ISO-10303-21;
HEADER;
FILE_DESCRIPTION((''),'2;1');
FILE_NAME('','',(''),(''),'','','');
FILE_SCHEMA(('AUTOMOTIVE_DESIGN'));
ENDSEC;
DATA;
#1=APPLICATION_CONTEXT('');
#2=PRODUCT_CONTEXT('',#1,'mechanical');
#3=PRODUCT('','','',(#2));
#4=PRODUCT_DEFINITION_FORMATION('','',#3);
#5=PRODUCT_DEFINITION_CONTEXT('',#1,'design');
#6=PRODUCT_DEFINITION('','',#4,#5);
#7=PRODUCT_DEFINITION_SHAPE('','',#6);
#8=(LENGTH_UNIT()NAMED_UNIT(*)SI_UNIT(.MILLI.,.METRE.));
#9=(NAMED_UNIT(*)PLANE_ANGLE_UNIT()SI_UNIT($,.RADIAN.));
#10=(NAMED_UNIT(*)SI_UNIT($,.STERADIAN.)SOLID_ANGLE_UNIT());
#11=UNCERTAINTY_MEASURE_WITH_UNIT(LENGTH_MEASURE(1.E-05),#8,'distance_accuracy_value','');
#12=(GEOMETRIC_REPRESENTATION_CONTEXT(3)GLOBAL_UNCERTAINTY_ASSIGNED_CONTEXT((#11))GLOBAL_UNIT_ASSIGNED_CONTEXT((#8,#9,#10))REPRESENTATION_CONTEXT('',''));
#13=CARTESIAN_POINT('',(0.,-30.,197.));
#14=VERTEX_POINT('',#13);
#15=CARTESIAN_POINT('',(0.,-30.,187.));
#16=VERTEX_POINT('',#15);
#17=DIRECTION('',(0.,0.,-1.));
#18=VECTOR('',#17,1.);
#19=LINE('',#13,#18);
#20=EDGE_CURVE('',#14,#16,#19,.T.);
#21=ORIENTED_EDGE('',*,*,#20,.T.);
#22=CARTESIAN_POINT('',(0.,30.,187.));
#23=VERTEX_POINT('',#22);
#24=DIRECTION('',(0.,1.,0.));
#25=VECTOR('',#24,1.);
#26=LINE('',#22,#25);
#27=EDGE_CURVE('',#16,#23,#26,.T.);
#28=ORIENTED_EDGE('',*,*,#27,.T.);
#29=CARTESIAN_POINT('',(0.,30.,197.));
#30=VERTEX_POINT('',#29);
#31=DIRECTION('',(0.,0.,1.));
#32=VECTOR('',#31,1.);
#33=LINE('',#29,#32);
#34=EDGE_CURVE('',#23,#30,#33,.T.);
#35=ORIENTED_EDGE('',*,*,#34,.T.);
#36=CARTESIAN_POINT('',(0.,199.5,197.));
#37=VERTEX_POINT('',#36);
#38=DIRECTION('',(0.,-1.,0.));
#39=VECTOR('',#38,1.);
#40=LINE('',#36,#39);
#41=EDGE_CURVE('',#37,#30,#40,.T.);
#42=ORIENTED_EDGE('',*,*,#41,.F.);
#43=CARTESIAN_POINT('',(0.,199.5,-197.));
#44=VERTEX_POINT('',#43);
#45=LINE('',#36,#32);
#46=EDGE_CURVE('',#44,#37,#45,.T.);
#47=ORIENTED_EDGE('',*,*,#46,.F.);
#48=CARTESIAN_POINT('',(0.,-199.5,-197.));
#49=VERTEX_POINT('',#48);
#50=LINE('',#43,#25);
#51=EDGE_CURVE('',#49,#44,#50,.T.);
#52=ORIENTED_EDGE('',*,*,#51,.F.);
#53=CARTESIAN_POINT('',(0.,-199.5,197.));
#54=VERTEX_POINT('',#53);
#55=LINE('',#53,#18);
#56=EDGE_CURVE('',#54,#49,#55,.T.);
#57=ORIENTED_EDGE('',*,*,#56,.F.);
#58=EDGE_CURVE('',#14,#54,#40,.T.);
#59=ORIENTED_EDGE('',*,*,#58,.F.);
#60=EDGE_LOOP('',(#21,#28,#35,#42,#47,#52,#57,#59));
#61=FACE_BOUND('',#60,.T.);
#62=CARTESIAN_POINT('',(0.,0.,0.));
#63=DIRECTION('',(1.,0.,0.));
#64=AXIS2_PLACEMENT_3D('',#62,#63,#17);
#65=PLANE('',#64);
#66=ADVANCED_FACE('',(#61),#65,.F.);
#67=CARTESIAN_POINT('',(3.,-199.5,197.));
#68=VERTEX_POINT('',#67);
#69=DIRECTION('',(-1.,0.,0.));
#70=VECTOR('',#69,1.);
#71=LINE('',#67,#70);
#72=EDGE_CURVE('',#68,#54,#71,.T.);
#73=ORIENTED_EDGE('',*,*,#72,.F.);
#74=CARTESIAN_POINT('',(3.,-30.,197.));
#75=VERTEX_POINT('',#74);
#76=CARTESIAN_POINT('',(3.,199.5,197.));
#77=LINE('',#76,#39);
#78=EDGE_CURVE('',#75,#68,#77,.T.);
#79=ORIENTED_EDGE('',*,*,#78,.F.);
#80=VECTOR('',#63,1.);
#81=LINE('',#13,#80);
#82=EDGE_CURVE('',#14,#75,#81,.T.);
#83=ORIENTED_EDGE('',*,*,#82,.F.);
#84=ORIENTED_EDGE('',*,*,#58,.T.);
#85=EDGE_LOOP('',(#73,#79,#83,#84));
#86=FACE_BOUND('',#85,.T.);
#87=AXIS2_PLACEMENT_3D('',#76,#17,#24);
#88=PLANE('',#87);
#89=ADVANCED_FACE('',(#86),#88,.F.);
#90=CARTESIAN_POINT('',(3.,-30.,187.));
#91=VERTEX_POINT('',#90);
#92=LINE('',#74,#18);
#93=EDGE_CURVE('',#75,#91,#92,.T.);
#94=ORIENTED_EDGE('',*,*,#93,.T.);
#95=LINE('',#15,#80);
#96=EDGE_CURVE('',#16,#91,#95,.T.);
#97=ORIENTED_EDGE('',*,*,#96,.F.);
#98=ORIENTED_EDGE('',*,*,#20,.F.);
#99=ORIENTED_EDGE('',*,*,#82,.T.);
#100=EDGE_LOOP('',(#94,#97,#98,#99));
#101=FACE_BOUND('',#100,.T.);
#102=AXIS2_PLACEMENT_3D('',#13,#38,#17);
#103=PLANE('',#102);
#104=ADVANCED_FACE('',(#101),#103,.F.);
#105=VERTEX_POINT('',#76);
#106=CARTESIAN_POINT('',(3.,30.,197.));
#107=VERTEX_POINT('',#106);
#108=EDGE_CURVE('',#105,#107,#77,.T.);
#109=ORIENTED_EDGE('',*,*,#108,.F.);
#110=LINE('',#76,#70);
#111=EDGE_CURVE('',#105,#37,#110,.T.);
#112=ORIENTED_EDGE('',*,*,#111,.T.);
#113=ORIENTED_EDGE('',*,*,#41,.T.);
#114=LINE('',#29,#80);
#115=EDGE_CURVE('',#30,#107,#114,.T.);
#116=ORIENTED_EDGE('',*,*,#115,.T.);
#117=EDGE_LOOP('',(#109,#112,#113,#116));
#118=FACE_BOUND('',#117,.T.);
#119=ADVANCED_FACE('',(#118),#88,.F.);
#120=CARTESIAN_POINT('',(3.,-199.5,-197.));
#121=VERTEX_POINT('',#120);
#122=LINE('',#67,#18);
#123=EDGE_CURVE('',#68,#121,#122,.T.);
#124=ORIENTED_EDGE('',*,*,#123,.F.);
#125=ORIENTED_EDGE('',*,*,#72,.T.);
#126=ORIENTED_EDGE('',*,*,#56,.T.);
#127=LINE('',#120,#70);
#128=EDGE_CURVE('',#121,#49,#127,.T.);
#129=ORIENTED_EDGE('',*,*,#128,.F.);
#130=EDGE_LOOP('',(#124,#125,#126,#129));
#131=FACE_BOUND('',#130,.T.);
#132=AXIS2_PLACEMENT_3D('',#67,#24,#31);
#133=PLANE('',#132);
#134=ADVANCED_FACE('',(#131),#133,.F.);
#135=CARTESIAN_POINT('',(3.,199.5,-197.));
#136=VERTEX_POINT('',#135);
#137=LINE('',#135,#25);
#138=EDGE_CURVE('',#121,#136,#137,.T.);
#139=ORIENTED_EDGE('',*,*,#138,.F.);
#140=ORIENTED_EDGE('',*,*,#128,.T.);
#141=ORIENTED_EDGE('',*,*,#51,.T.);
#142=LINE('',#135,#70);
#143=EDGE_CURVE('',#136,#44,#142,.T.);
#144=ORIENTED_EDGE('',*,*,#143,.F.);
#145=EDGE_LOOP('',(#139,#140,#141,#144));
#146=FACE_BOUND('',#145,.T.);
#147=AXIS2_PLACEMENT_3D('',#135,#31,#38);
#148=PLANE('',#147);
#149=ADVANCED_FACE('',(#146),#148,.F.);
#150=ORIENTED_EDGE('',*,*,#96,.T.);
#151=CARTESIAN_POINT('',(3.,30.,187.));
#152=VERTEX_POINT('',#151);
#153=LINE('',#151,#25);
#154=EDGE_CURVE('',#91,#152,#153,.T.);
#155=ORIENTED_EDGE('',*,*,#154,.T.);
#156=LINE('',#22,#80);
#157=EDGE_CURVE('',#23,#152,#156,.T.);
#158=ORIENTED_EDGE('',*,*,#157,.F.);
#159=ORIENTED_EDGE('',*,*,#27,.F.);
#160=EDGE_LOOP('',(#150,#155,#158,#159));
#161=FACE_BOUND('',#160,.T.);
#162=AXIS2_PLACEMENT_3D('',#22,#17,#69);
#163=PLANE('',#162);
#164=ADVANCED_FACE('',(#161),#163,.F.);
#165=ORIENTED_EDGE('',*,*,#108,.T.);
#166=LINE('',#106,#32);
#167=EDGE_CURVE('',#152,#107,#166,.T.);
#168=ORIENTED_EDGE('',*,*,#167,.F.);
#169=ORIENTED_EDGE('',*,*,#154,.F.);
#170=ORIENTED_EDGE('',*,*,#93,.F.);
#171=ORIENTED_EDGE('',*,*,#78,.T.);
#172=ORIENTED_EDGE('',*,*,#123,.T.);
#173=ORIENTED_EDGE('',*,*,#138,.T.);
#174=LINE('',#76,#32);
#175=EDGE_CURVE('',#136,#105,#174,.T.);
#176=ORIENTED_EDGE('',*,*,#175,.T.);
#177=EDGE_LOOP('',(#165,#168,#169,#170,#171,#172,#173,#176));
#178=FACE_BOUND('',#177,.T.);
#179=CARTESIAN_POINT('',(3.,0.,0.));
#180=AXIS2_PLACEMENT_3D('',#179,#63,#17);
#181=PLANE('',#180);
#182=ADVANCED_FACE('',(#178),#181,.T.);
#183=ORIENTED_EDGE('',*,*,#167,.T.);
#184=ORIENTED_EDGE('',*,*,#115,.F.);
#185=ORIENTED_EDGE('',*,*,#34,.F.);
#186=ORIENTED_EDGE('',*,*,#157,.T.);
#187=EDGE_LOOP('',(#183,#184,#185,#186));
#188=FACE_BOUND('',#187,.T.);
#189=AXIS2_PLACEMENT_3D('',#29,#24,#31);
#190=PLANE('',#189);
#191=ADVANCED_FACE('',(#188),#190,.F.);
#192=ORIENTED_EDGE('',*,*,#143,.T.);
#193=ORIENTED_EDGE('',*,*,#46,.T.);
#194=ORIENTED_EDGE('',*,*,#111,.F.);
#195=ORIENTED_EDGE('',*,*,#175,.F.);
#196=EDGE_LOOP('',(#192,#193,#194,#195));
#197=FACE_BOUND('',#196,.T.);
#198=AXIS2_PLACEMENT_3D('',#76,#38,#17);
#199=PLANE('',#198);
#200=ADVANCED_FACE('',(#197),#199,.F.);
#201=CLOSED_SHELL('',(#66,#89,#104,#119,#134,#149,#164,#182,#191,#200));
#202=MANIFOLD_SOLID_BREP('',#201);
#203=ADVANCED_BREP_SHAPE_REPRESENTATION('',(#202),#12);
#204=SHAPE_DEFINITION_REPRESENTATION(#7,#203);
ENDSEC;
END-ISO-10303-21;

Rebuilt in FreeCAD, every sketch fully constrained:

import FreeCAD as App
import Part
import Sketcher
Q = App.Units.Quantity


def add_polygon(sketch, points):
    """Adds a closed chain of lines whose ends are joined by coincident constraints."""
    first, n = sketch.GeometryCount, len(points)
    for a, b in zip(points, points[1:] + points[:1]):
        sketch.addGeometry(Part.LineSegment(App.Vector(*a, 0), App.Vector(*b, 0)), False)
    for i in range(n):
        sketch.addConstraint(Sketcher.Constraint("Coincident", first + i, 2, first + (i + 1) % n, 1))

doc = App.newDocument("Part")
body = doc.addObject("PartDesign::Body", "Body")

sketch1 = body.newObject("Sketcher::SketchObject", "Sketch")
sketch1.AttachmentSupport = (doc.getObject("YZ_Plane"), [""])
sketch1.MapMode = "FlatFace"
add_polygon(sketch1, [(200, 197), (-200, 197), (-200, -197), (200, -197)])
sketch1.addConstraint(Sketcher.Constraint("Horizontal", 0))
sketch1.addConstraint(Sketcher.Constraint("Vertical", 1))
sketch1.addConstraint(Sketcher.Constraint("Horizontal", 2))
sketch1.addConstraint(Sketcher.Constraint("Vertical", 3))
sketch1.addConstraint(Sketcher.Constraint("Symmetric", 0, 2, 2, 2, -1, 1))
sketch1.addConstraint(Sketcher.Constraint("DistanceX", 0, 2, 0, 1, Q("399 mm")))
sketch1.addConstraint(Sketcher.Constraint("DistanceY", 1, 2, 1, 1, Q("394 mm")))
pad1 = body.newObject("PartDesign::Pad", "Pad")
pad1.Profile = sketch1
pad1.Length = 3

sketch2 = body.newObject("Sketcher::SketchObject", "Sketch001")
sketch2.AttachmentSupport = (doc.getObject("YZ_Plane"), [""])
sketch2.MapMode = "FlatFace"
sketch2.AttachmentOffset = App.Placement(App.Vector(0, 0, 3), App.Rotation())
add_polygon(sketch2, [(30, 197), (-30, 197), (-30, 187), (30, 187)])
sketch2.addConstraint(Sketcher.Constraint("Horizontal", 0))
sketch2.addConstraint(Sketcher.Constraint("Vertical", 1))
sketch2.addConstraint(Sketcher.Constraint("Horizontal", 2))
sketch2.addConstraint(Sketcher.Constraint("Vertical", 3))
sketch2.addConstraint(Sketcher.Constraint("DistanceX", 0, 2, 0, 1, Q("60 mm")))
sketch2.addConstraint(Sketcher.Constraint("DistanceY", 1, 2, 1, 1, Q("10 mm")))
sketch2.addConstraint(Sketcher.Constraint("DistanceX", 0, 2, -1, 1, Q("30 mm")))
sketch2.addConstraint(Sketcher.Constraint("DistanceY", -1, 1, 0, 2, Q("197 mm")))
pocket1 = body.newObject("PartDesign::Pocket", "Pocket")
pocket1.Profile = sketch2
pocket1.Type = "ThroughAll"

doc.recompute()
